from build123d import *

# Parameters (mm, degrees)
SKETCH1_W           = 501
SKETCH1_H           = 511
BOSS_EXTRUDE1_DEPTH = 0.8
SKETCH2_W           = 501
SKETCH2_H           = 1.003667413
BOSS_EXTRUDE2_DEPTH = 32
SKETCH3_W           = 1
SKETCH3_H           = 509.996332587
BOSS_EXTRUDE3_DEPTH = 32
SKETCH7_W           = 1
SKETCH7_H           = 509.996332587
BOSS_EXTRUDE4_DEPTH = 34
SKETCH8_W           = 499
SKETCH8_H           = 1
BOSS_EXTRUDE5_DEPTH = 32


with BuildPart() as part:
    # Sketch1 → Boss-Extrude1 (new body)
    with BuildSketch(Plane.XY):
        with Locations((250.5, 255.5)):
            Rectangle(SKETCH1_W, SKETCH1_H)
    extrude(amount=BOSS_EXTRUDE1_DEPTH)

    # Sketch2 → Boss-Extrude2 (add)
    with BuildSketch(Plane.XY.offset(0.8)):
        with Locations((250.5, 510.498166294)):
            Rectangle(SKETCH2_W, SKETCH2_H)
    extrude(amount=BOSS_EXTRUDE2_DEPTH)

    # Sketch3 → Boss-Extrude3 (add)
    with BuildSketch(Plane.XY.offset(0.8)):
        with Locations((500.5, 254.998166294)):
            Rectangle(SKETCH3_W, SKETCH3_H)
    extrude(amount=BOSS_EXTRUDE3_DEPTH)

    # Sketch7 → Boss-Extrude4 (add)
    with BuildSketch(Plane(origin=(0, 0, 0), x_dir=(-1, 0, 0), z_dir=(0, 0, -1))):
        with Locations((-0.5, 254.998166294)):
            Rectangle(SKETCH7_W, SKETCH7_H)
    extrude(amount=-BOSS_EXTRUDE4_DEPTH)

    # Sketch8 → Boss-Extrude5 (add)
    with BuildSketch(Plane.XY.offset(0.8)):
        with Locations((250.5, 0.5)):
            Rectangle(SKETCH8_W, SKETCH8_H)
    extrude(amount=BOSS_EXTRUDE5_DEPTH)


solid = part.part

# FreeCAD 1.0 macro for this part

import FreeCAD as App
import Part
import Sketcher

doc = App.newDocument("Part")
body = doc.addObject("PartDesign::Body", "Body")

# Sketch on XY plane
sketch1 = body.newObject("Sketcher::SketchObject", "Sketch")
sketch1.AttachmentSupport = (doc.getObject("XY_Plane"), [""])
sketch1.MapMode = "FlatFace"
sketch1.addGeometry([
    Part.LineSegment(App.Vector(0, 511, 0), App.Vector(0, 0, 0)),
    Part.LineSegment(App.Vector(0, 0, 0), App.Vector(501, 0, 0)),
    Part.LineSegment(App.Vector(501, 0, 0), App.Vector(501, 511, 0)),
    Part.LineSegment(App.Vector(501, 511, 0), App.Vector(0, 511, 0)),
], False)
sketch1.addConstraint([
    Sketcher.Constraint("Coincident", 0, 2, 1, 1),
    Sketcher.Constraint("Coincident", 1, 2, 2, 1),
    Sketcher.Constraint("Coincident", 2, 2, 3, 1),
    Sketcher.Constraint("Coincident", 3, 2, 0, 1),
    Sketcher.Constraint("Vertical", 0),
    Sketcher.Constraint("Horizontal", 1),
    Sketcher.Constraint("Vertical", 2),
    Sketcher.Constraint("Horizontal", 3),
    Sketcher.Constraint("Coincident", 0, 2, -1, 1),
    Sketcher.Constraint("DistanceX", 1, 1, 1, 2, 501.0),
    Sketcher.Constraint("DistanceY", 0, 2, 0, 1, 511.0),
])
pad1 = body.newObject("PartDesign::Pad", "Pad")
pad1.Profile = sketch1
pad1.Length = 0.8

# Sketch on XY plane
sketch2 = body.newObject("Sketcher::SketchObject", "Sketch001")
sketch2.AttachmentSupport = (doc.getObject("XY_Plane"), [""])
sketch2.MapMode = "FlatFace"
sketch2.AttachmentOffset = App.Placement(App.Vector(0, 0, 0.8), App.Rotation())
sketch2.addGeometry([
    Part.LineSegment(App.Vector(0, 511, 0), App.Vector(0, 510, 0)),
    Part.LineSegment(App.Vector(0, 510, 0), App.Vector(501, 510, 0)),
    Part.LineSegment(App.Vector(501, 510, 0), App.Vector(501, 511, 0)),
    Part.LineSegment(App.Vector(501, 511, 0), App.Vector(0, 511, 0)),
], False)
sketch2.addConstraint([
    Sketcher.Constraint("Coincident", 0, 2, 1, 1),
    Sketcher.Constraint("Coincident", 1, 2, 2, 1),
    Sketcher.Constraint("Coincident", 2, 2, 3, 1),
    Sketcher.Constraint("Coincident", 3, 2, 0, 1),
    Sketcher.Constraint("Vertical", 0),
    Sketcher.Constraint("Horizontal", 1),
    Sketcher.Constraint("Vertical", 2),
    Sketcher.Constraint("Horizontal", 3),
    Sketcher.Constraint("PointOnObject", 0, 2, -2),
    Sketcher.Constraint("DistanceX", 1, 1, 1, 2, 501.0),
    Sketcher.Constraint("DistanceY", -1, 1, 2, 2, 511.0),
    Sketcher.Constraint("DistanceY", 0, 2, 0, 1, 1.003667),
])
pad2 = body.newObject("PartDesign::Pad", "Pad001")
pad2.Profile = sketch2
pad2.Length = 32

# Sketch on XY plane
sketch3 = body.newObject("Sketcher::SketchObject", "Sketch002")
sketch3.AttachmentSupport = (doc.getObject("XY_Plane"), [""])
sketch3.MapMode = "FlatFace"
sketch3.AttachmentOffset = App.Placement(App.Vector(0, 0, 0.8), App.Rotation())
sketch3.addGeometry([
    Part.LineSegment(App.Vector(500, 510, 0), App.Vector(500, 0, 0)),
    Part.LineSegment(App.Vector(500, 0, 0), App.Vector(501, 0, 0)),
    Part.LineSegment(App.Vector(501, 0, 0), App.Vector(501, 510, 0)),
    Part.LineSegment(App.Vector(501, 510, 0), App.Vector(500, 510, 0)),
], False)
sketch3.addConstraint([
    Sketcher.Constraint("Coincident", 0, 2, 1, 1),
    Sketcher.Constraint("Coincident", 1, 2, 2, 1),
    Sketcher.Constraint("Coincident", 2, 2, 3, 1),
    Sketcher.Constraint("Coincident", 3, 2, 0, 1),
    Sketcher.Constraint("Vertical", 0),
    Sketcher.Constraint("Horizontal", 1),
    Sketcher.Constraint("Vertical", 2),
    Sketcher.Constraint("Horizontal", 3),
    Sketcher.Constraint("PointOnObject", 0, 2, -1),
    Sketcher.Constraint("DistanceX", 1, 1, 1, 2, 1.0),
    Sketcher.Constraint("DistanceX", -1, 1, 0, 2, 500.0),
    Sketcher.Constraint("DistanceY", 0, 2, 0, 1, 509.996333),
])
pad3 = body.newObject("PartDesign::Pad", "Pad002")
pad3.Profile = sketch3
pad3.Length = 32

# Sketch on XY plane
sketch4 = body.newObject("Sketcher::SketchObject", "Sketch003")
sketch4.AttachmentSupport = (doc.getObject("XY_Plane"), [""])
sketch4.MapMode = "FlatFace"
sketch4.addGeometry([
    Part.LineSegment(App.Vector(1, 510, 0), App.Vector(1, 0, 0)),
    Part.LineSegment(App.Vector(1, 0, 0), App.Vector(0, 0, 0)),
    Part.LineSegment(App.Vector(0, 0, 0), App.Vector(0, 510, 0)),
    Part.LineSegment(App.Vector(0, 510, 0), App.Vector(1, 510, 0)),
], False)
sketch4.addConstraint([
    Sketcher.Constraint("Coincident", 0, 2, 1, 1),
    Sketcher.Constraint("Coincident", 1, 2, 2, 1),
    Sketcher.Constraint("Coincident", 2, 2, 3, 1),
    Sketcher.Constraint("Coincident", 3, 2, 0, 1),
    Sketcher.Constraint("Vertical", 0),
    Sketcher.Constraint("Horizontal", 1),
    Sketcher.Constraint("Vertical", 2),
    Sketcher.Constraint("Horizontal", 3),
    Sketcher.Constraint("Coincident", 1, 2, -1, 1),
    Sketcher.Constraint("DistanceX", 1, 2, 1, 1, 1.0),
    Sketcher.Constraint("DistanceY", 0, 2, 0, 1, 509.996333),
])
pad4 = body.newObject("PartDesign::Pad", "Pad003")
pad4.Profile = sketch4
pad4.Length = 34

# Sketch on XY plane
sketch5 = body.newObject("Sketcher::SketchObject", "Sketch004")
sketch5.AttachmentSupport = (doc.getObject("XY_Plane"), [""])
sketch5.MapMode = "FlatFace"
sketch5.AttachmentOffset = App.Placement(App.Vector(0, 0, 0.8), App.Rotation())
sketch5.addGeometry([
    Part.LineSegment(App.Vector(1, 1, 0), App.Vector(1, 0, 0)),
    Part.LineSegment(App.Vector(1, 0, 0), App.Vector(500, 0, 0)),
    Part.LineSegment(App.Vector(500, 0, 0), App.Vector(500, 1, 0)),
    Part.LineSegment(App.Vector(500, 1, 0), App.Vector(1, 1, 0)),
], False)
sketch5.addConstraint([
    Sketcher.Constraint("Coincident", 0, 2, 1, 1),
    Sketcher.Constraint("Coincident", 1, 2, 2, 1),
    Sketcher.Constraint("Coincident", 2, 2, 3, 1),
    Sketcher.Constraint("Coincident", 3, 2, 0, 1),
    Sketcher.Constraint("Vertical", 0),
    Sketcher.Constraint("Horizontal", 1),
    Sketcher.Constraint("Vertical", 2),
    Sketcher.Constraint("Horizontal", 3),
    Sketcher.Constraint("PointOnObject", 0, 2, -1),
    Sketcher.Constraint("DistanceX", 1, 1, 1, 2, 499.0),
    Sketcher.Constraint("DistanceY", 0, 2, 0, 1, 1.0),
    Sketcher.Constraint("DistanceX", -1, 1, 0, 2, 1.0),
])
pad5 = body.newObject("PartDesign::Pad", "Pad004")
pad5.Profile = sketch5
pad5.Length = 32

doc.recompute()
